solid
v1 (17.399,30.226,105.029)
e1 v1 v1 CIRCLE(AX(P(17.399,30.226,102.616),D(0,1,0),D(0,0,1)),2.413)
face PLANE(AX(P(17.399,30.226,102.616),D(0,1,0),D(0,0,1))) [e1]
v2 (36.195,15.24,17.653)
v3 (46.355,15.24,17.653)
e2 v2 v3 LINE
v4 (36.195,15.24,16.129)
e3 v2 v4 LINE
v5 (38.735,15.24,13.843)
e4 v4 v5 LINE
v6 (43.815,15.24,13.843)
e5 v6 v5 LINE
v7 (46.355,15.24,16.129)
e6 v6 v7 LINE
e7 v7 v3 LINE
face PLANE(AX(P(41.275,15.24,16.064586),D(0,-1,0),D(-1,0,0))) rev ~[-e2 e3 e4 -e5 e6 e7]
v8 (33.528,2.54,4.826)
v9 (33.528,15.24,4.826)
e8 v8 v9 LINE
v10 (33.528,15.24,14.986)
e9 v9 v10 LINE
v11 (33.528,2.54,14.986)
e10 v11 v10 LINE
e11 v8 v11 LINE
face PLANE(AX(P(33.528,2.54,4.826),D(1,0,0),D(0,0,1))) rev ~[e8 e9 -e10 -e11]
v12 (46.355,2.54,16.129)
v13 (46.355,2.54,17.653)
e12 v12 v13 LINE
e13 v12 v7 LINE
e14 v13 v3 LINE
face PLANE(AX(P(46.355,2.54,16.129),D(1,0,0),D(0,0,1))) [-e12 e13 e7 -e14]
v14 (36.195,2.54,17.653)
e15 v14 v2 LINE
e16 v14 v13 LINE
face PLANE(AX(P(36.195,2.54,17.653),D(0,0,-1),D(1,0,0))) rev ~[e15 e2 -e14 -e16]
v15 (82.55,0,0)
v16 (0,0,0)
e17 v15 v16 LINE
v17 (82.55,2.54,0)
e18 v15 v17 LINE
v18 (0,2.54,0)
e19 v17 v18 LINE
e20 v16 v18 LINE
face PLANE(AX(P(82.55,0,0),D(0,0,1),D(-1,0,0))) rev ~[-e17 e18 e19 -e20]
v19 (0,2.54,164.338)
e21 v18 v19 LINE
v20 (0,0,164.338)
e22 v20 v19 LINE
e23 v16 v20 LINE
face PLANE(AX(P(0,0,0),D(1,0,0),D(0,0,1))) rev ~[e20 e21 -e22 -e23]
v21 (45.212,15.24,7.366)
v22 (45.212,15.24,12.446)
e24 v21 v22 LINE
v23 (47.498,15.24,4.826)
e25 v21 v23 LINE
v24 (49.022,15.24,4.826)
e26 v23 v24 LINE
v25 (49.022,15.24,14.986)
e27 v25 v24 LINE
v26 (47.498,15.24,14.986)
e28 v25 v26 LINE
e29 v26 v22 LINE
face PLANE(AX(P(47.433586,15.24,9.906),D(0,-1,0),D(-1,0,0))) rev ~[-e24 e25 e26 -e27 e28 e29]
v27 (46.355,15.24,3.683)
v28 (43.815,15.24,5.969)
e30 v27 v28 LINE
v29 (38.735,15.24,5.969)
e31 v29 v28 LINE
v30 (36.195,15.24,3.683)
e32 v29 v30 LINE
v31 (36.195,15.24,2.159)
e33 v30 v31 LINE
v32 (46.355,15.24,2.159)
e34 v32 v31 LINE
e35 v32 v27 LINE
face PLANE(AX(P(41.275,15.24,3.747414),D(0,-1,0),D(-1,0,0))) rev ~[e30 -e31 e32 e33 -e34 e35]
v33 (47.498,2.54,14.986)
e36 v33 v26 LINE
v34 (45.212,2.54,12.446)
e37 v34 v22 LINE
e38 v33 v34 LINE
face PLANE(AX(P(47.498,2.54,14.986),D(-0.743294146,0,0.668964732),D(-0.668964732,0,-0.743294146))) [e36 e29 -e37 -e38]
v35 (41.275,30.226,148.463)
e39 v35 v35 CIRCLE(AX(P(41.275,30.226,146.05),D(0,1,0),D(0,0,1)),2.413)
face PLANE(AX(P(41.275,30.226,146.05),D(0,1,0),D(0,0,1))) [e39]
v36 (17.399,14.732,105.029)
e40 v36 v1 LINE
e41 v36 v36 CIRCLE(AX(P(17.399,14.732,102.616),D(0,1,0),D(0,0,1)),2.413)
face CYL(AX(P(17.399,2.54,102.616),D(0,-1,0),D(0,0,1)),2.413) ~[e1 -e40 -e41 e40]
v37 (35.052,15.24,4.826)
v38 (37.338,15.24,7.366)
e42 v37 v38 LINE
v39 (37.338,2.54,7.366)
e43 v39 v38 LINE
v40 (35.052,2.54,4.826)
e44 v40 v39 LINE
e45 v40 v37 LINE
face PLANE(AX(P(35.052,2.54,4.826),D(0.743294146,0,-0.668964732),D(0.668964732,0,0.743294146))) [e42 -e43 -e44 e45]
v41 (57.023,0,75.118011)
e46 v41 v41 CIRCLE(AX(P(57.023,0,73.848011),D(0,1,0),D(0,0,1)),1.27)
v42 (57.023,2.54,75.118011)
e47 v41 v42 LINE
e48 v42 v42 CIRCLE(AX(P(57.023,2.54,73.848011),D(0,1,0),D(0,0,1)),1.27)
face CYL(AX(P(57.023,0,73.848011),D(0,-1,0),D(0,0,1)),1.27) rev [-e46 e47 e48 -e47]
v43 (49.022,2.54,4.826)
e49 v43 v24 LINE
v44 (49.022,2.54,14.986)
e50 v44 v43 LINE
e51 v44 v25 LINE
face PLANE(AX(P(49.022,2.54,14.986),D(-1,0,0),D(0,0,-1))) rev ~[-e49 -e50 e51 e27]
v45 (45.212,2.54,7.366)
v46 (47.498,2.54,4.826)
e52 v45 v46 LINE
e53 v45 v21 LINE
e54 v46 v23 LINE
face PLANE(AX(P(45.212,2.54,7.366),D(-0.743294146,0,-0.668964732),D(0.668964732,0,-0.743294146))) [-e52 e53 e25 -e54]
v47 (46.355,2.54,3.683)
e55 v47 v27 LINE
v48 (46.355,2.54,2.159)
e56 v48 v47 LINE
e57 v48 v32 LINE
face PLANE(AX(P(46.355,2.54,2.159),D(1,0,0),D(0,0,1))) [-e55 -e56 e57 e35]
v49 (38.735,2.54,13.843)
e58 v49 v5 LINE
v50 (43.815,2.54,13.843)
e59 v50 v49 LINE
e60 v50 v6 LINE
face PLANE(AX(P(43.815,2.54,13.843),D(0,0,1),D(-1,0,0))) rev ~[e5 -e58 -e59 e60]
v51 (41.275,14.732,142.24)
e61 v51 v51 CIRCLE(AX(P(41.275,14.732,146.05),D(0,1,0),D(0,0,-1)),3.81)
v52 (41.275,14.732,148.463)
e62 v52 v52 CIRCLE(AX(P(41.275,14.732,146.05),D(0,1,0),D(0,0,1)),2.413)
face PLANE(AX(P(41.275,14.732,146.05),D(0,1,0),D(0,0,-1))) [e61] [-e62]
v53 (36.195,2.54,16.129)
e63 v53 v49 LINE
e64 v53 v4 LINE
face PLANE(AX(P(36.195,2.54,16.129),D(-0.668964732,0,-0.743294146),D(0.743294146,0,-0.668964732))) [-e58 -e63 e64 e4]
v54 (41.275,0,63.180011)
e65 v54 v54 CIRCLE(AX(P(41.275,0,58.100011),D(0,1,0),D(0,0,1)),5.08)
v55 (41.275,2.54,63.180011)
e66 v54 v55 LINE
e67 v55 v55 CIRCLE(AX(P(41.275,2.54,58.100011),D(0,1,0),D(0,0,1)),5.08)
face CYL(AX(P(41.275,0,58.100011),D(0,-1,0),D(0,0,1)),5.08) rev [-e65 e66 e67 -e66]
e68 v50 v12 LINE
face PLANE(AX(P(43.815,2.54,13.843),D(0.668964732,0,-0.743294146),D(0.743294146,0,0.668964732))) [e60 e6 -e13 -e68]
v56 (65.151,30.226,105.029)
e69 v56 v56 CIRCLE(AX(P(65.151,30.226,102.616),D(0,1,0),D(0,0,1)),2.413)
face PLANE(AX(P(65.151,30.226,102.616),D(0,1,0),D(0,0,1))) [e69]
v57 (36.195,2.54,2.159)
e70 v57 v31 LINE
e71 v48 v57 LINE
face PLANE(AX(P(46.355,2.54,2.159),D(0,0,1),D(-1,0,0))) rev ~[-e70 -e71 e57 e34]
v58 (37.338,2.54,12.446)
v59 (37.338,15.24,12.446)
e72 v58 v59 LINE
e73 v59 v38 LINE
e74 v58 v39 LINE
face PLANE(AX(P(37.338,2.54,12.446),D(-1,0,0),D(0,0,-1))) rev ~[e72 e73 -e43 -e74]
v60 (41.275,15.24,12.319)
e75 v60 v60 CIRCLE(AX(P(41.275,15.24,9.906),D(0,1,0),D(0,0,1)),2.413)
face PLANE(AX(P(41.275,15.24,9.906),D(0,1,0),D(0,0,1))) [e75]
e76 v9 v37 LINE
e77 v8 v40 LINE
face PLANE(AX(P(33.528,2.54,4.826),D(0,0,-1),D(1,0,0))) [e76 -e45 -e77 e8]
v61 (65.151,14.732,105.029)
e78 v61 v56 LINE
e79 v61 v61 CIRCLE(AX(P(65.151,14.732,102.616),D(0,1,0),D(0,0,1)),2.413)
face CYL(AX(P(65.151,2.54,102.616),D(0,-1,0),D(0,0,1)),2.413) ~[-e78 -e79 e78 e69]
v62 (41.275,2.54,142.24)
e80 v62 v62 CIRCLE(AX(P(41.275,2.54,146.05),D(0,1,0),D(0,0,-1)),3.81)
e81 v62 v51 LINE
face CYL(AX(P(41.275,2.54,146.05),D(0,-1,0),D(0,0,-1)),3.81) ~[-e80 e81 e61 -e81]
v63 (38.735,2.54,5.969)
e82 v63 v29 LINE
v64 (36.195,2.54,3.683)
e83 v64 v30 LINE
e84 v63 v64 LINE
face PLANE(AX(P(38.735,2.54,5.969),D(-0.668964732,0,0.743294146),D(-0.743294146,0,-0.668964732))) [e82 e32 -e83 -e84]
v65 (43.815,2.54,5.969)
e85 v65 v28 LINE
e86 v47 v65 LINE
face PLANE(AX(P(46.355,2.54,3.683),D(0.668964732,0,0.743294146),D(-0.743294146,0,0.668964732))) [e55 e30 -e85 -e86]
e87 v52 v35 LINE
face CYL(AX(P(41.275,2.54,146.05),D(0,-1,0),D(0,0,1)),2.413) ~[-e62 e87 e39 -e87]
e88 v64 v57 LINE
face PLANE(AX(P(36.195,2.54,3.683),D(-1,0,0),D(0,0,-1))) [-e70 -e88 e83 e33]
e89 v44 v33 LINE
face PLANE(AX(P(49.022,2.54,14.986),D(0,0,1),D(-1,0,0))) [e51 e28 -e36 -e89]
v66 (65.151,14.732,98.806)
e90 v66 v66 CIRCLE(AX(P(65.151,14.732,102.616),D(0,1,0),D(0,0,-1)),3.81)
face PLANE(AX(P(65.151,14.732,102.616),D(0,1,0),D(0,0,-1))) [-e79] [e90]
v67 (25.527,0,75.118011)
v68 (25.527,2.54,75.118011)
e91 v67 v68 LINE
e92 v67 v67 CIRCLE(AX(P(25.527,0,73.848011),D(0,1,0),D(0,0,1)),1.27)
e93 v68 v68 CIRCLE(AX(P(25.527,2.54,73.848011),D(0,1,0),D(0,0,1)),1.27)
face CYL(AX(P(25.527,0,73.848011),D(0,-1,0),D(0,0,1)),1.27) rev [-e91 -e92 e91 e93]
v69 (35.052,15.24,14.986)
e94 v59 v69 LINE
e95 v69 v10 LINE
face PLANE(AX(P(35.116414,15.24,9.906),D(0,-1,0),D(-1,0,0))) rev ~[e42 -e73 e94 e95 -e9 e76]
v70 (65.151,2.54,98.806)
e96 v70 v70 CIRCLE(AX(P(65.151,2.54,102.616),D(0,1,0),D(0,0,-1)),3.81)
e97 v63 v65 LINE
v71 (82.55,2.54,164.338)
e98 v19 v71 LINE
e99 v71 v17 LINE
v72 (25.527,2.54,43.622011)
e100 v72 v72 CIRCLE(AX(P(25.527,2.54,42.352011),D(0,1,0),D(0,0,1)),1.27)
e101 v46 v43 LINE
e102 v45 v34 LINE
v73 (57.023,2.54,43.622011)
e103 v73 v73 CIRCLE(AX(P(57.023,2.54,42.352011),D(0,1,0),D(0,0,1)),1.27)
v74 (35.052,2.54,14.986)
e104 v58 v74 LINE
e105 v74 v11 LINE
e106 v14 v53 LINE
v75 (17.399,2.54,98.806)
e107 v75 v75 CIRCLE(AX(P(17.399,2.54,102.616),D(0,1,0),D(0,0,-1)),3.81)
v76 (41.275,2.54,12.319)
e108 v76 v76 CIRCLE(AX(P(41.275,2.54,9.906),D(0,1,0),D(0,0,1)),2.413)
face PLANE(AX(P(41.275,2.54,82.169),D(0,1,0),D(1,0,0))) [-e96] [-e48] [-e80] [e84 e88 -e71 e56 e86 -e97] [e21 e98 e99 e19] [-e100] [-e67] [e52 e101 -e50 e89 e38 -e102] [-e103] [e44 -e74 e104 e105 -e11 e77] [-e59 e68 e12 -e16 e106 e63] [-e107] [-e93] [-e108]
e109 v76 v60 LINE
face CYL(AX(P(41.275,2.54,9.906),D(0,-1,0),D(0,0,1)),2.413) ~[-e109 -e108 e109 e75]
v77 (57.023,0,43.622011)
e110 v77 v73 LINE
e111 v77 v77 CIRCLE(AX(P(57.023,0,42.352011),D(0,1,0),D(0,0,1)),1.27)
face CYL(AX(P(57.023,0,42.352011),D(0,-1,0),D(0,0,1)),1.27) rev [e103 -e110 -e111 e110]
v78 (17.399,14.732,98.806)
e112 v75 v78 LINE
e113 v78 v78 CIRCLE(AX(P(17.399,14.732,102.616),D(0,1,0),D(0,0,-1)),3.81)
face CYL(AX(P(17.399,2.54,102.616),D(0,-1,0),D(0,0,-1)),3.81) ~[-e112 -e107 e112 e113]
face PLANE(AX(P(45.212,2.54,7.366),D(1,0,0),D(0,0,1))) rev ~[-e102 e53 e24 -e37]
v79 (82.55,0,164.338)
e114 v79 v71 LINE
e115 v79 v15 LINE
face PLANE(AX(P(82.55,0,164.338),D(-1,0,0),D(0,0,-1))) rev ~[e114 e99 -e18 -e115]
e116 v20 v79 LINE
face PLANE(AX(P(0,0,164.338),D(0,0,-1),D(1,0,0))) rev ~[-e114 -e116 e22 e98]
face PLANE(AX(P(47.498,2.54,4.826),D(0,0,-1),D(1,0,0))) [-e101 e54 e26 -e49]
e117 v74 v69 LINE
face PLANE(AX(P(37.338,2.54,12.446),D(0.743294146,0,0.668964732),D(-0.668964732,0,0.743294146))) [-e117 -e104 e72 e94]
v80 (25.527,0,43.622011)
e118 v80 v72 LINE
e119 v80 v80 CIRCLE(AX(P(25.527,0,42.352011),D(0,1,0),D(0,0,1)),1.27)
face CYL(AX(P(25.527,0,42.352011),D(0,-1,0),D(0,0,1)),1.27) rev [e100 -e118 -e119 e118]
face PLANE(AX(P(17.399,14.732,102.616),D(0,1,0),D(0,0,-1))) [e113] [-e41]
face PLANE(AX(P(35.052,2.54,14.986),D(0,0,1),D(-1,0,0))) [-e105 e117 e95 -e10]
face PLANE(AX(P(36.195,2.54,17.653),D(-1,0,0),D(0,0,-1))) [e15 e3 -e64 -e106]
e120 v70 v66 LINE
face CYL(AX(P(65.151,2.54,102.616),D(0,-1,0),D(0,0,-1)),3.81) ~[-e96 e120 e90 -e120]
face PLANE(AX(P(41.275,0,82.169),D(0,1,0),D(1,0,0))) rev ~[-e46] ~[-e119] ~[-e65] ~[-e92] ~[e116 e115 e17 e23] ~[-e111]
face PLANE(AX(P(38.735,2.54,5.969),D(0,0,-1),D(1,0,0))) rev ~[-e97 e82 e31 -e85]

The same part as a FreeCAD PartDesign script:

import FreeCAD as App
import Part
import Sketcher
from FreeCAD import Vector
Q = App.Units.Quantity


def add_polygon(sketch, points):
    """Adds a closed chain of lines whose ends are joined by coincident constraints."""
    first, n = sketch.GeometryCount, len(points)
    for a, b in zip(points, points[1:] + points[:1]):
        sketch.addGeometry(Part.LineSegment(App.Vector(*a, 0), App.Vector(*b, 0)), False)
    for i in range(n):
        sketch.addConstraint(Sketcher.Constraint("Coincident", first + i, 2, first + (i + 1) % n, 1))

doc = App.newDocument("Part")
body = doc.addObject("PartDesign::Body", "Body")

sketch1 = body.newObject("Sketcher::SketchObject", "Sketch")
sketch1.AttachmentSupport = (doc.getObject("XZ_Plane"), [""])
sketch1.MapMode = "FlatFace"
add_polygon(sketch1, [(82.5, 164.3), (82.5, 0), (0, 0), (0, 164.3)])
sketch1.addGeometry(Part.Circle(Vector(25.5, 73.8, 0), Vector(0, 0, 1), 1.3), False)
sketch1.addGeometry(Part.Circle(Vector(41.3, 58.1, 0), Vector(0, 0, 1), 5.1), False)
sketch1.addGeometry(Part.Circle(Vector(57, 73.8, 0), Vector(0, 0, 1), 1.3), False)
sketch1.addGeometry(Part.Circle(Vector(25.5, 42.4, 0), Vector(0, 0, 1), 1.3), False)
sketch1.addGeometry(Part.Circle(Vector(57, 42.4, 0), Vector(0, 0, 1), 1.3), False)
sketch1.addConstraint(Sketcher.Constraint("Vertical", 0))
sketch1.addConstraint(Sketcher.Constraint("Horizontal", 1))
sketch1.addConstraint(Sketcher.Constraint("Vertical", 2))
sketch1.addConstraint(Sketcher.Constraint("Horizontal", 3))
sketch1.addConstraint(Sketcher.Constraint("Coincident", 1, 2, -1, 1))
sketch1.addConstraint(Sketcher.Constraint("Equal", 4, 6))
sketch1.addConstraint(Sketcher.Constraint("Equal", 6, 7))
sketch1.addConstraint(Sketcher.Constraint("Equal", 7, 8))
sketch1.addConstraint(Sketcher.Constraint("Horizontal", 4, 3, 6, 3))
sketch1.addConstraint(Sketcher.Constraint("Horizontal", 7, 3, 8, 3))
sketch1.addConstraint(Sketcher.Constraint("Vertical", 4, 3, 7, 3))
sketch1.addConstraint(Sketcher.Constraint("Vertical", 6, 3, 8, 3))
sketch1.addConstraint(Sketcher.Constraint("Diameter", 4, Q("0.1 in")))
sketch1.addConstraint(Sketcher.Constraint("Diameter", 5, Q("0.4 in")))
sketch1.addConstraint(Sketcher.Constraint("DistanceX", 1, 2, 1, 1, Q("3.25 in")))
sketch1.addConstraint(Sketcher.Constraint("DistanceY", 0, 2, 0, 1, Q("6.47 in")))
sketch1.addConstraint(Sketcher.Constraint("DistanceX", 4, 3, 5, 3, Q("0.62 in")))
sketch1.addConstraint(Sketcher.Constraint("DistanceY", 5, 3, 4, 3, Q("0.62 in")))
sketch1.addConstraint(Sketcher.Constraint("DistanceX", 5, 3, 6, 3, Q("0.62 in")))
sketch1.addConstraint(Sketcher.Constraint("DistanceY", 7, 3, 5, 3, Q("0.62 in")))
sketch1.addConstraint(Sketcher.Constraint("DistanceX", -1, 1, 4, 3, Q("1.005 in")))
sketch1.addConstraint(Sketcher.Constraint("DistanceY", -1, 1, 4, 3, Q("73.848011 mm")))
pad1 = body.newObject("PartDesign::Pad", "Pad")
pad1.Profile = sketch1
pad1.Length = Q("0.1 in")
pad1.Reversed = True

sketch2 = body.newObject("Sketcher::SketchObject", "Sketch001")
sketch2.AttachmentSupport = (doc.getObject("XZ_Plane"), [""])
sketch2.MapMode = "FlatFace"
sketch2.AttachmentOffset = App.Placement(Vector(0, 0, -0.1 * 25.4), App.Rotation())
add_polygon(sketch2, [(33.5, 4.8), (33.5, 15), (35.1, 15), (37.3, 12.4), (37.3, 7.4), (35.1, 4.8)])
sketch2.addGeometry(Part.Circle(Vector(41.3, 9.9, 0), Vector(0, 0, 1), 2.4), False)
add_polygon(sketch2, [(46.4, 2.2), (36.2, 2.2), (36.2, 3.7), (38.7, 6), (43.8, 6), (46.4, 3.7)])
add_polygon(sketch2, [(45.2, 12.4), (47.5, 15), (49, 15), (49, 4.8), (47.5, 4.8), (45.2, 7.4)])
add_polygon(sketch2, [(36.2, 17.7), (46.4, 17.7), (46.4, 16.1), (43.8, 13.8), (38.7, 13.8), (36.2, 16.1)])
sketch2.addConstraint(Sketcher.Constraint("Vertical", 0))
sketch2.addConstraint(Sketcher.Constraint("Horizontal", 1))
sketch2.addConstraint(Sketcher.Constraint("Vertical", 3))
sketch2.addConstraint(Sketcher.Constraint("Horizontal", 5))
sketch2.addConstraint(Sketcher.Constraint("Horizontal", 7))
sketch2.addConstraint(Sketcher.Constraint("Vertical", 8))
sketch2.addConstraint(Sketcher.Constraint("Horizontal", 10))
sketch2.addConstraint(Sketcher.Constraint("Vertical", 12))
sketch2.addConstraint(Sketcher.Constraint("Horizontal", 14))
sketch2.addConstraint(Sketcher.Constraint("Vertical", 15))
sketch2.addConstraint(Sketcher.Constraint("Horizontal", 16))
sketch2.addConstraint(Sketcher.Constraint("Vertical", 18))
sketch2.addConstraint(Sketcher.Constraint("Horizontal", 19))
sketch2.addConstraint(Sketcher.Constraint("Vertical", 20))
sketch2.addConstraint(Sketcher.Constraint("Horizontal", 22))
sketch2.addConstraint(Sketcher.Constraint("Vertical", 24))
sketch2.addConstraint(Sketcher.Constraint("Perpendicular", 2, 9))
sketch2.addConstraint(Sketcher.Constraint("Perpendicular", 4, 11))
sketch2.addConstraint(Sketcher.Constraint("Perpendicular", 11, 13))
sketch2.addConstraint(Sketcher.Constraint("Perpendicular", 9, 17))
sketch2.addConstraint(Sketcher.Constraint("Perpendicular", 17, 21))
sketch2.addConstraint(Sketcher.Constraint("Perpendicular", 13, 23))
sketch2.addConstraint(Sketcher.Constraint("Horizontal", 8, 2, 11, 2))
sketch2.addConstraint(Sketcher.Constraint("Horizontal", 1, 2, 13, 2))
sketch2.addConstraint(Sketcher.Constraint("Horizontal", 5, 2, 15, 2))
sketch2.addConstraint(Sketcher.Constraint("Horizontal", 3, 2, 17, 2))
sketch2.addConstraint(Sketcher.Constraint("Horizontal", 2, 2, 18, 2))
sketch2.addConstraint(Sketcher.Constraint("Horizontal", 20, 2, 23, 2))
sketch2.addConstraint(Sketcher.Constraint("Vertical", 1, 2, 4, 2))
sketch2.addConstraint(Sketcher.Constraint("Vertical", 13, 2, 16, 2))
sketch2.addConstraint(Sketcher.Constraint("Vertical", 12, 2, 19, 2))
sketch2.addConstraint(Sketcher.Constraint("Vertical", 10, 2, 21, 2))
sketch2.addConstraint(Sketcher.Constraint("Vertical", 9, 2, 22, 2))
sketch2.addConstraint(Sketcher.Constraint("Equal", 5, 14))
sketch2.addConstraint(Sketcher.Constraint("Equal", 19, 0))
sketch2.addConstraint(Sketcher.Constraint("Equal", 22, 3))
sketch2.addConstraint(Sketcher.Constraint("Equal", 16, 8))
sketch2.addConstraint(Sketcher.Constraint("Equal", 12, 20))
sketch2.addConstraint(Sketcher.Constraint("Diameter", 6, Q("0.19 in")))
sketch2.addConstraint(Sketcher.Constraint("DistanceX", 7, 2, 7, 1, Q("0.4 in")))
sketch2.addConstraint(Sketcher.Constraint("DistanceX", 10, 1, 10, 2, Q("0.2 in")))
sketch2.addConstraint(Sketcher.Constraint("DistanceX", 1, 1, 1, 2, Q("0.06 in")))
sketch2.addConstraint(Sketcher.Constraint("DistanceY", 6, 3, 0, 2, Q("0.2 in")))
sketch2.addConstraint(Sketcher.Constraint("DistanceX", 7, 2, 6, 3, Q("0.2 in")))
sketch2.addConstraint(Sketcher.Constraint("DistanceX", 2, 2, 13, 2, Q("0.4 in")))
sketch2.addConstraint(Sketcher.Constraint("DistanceY", -1, 1, 6, 3, Q("0.39 in")))
sketch2.addConstraint(Sketcher.Constraint("DistanceX", -1, 1, 0, 2, Q("1.32 in")))
sketch2.addConstraint(Sketcher.Constraint("DistanceX", -1, 1, 2, 2, Q("1.47 in")))
sketch2.addConstraint(Sketcher.Constraint("DistanceX", -1, 1, 6, 3, Q("1.625 in")))
sketch2.addConstraint(Sketcher.Constraint("DistanceY", -1, 1, 7, 2, Q("0.085 in")))
sketch2.addConstraint(Sketcher.Constraint("DistanceY", -1, 1, 19, 2, Q("0.695 in")))
pad2 = body.newObject("PartDesign::Pad", "Pad001")
pad2.Profile = sketch2
pad2.Length = Q("0.5 in")
pad2.Reversed = True

sketch3 = body.newObject("Sketcher::SketchObject", "Sketch002")
sketch3.AttachmentSupport = (doc.getObject("XZ_Plane"), [""])
sketch3.MapMode = "FlatFace"
sketch3.AttachmentOffset = App.Placement(Vector(0, 0, -0.1 * 25.4), App.Rotation())
sketch3.addGeometry(Part.Circle(Vector(17.4, 102.6, 0), Vector(0, 0, 1), 2.4), False)
sketch3.addGeometry(Part.Circle(Vector(41.3, 146.1, 0), Vector(0, 0, 1), 2.4), False)
sketch3.addGeometry(Part.Circle(Vector(65.2, 102.6, 0), Vector(0, 0, 1), 2.4), False)
sketch3.addConstraint(Sketcher.Constraint("Equal", 0, 1))
sketch3.addConstraint(Sketcher.Constraint("Equal", 1, 2))
sketch3.addConstraint(Sketcher.Constraint("Horizontal", 0, 3, 2, 3))
sketch3.addConstraint(Sketcher.Constraint("Diameter", 0, Q("0.19 in")))
sketch3.addConstraint(Sketcher.Constraint("DistanceY", -1, 1, 0, 3, Q("4.04 in")))
sketch3.addConstraint(Sketcher.Constraint("DistanceY", -1, 1, 1, 3, Q("5.75 in")))
sketch3.addConstraint(Sketcher.Constraint("DistanceX", 0, 3, 1, 3, Q("0.94 in")))
sketch3.addConstraint(Sketcher.Constraint("DistanceX", 0, 3, 2, 3, Q("1.88 in")))
sketch3.addConstraint(Sketcher.Constraint("DistanceX", -1, 1, 0, 3, Q("0.685 in")))
pad3 = body.newObject("PartDesign::Pad", "Pad002")
pad3.Profile = sketch3
pad3.Length = Q("1.09 in")
pad3.Reversed = True

sketch4 = body.newObject("Sketcher::SketchObject", "Sketch003")
sketch4.AttachmentSupport = (doc.getObject("XZ_Plane"), [""])
sketch4.MapMode = "FlatFace"
sketch4.AttachmentOffset = App.Placement(Vector(0, 0, -0.1 * 25.4), App.Rotation())
sketch4.addGeometry(Part.Circle(Vector(41.3, 146.1, 0), Vector(0, 0, 1), 3.8), False)
sketch4.addGeometry(Part.Circle(Vector(41.3, 146.1, 0), Vector(0, 0, 1), 2.4), False)
sketch4.addGeometry(Part.Circle(Vector(65.2, 102.6, 0), Vector(0, 0, 1), 3.8), False)
sketch4.addGeometry(Part.Circle(Vector(65.2, 102.6, 0), Vector(0, 0, 1), 2.4), False)
sketch4.addGeometry(Part.Circle(Vector(17.4, 102.6, 0), Vector(0, 0, 1), 3.8), False)
sketch4.addGeometry(Part.Circle(Vector(17.4, 102.6, 0), Vector(0, 0, 1), 2.4), False)
sketch4.addConstraint(Sketcher.Constraint("Coincident", 1, 3, 0, 3))
sketch4.addConstraint(Sketcher.Constraint("Coincident", 3, 3, 2, 3))
sketch4.addConstraint(Sketcher.Constraint("Coincident", 5, 3, 4, 3))
sketch4.addConstraint(Sketcher.Constraint("Equal", 0, 2))
sketch4.addConstraint(Sketcher.Constraint("Equal", 1, 3))
sketch4.addConstraint(Sketcher.Constraint("Equal", 2, 4))
sketch4.addConstraint(Sketcher.Constraint("Equal", 3, 5))
sketch4.addConstraint(Sketcher.Constraint("Horizontal", 3, 3, 4, 3))
sketch4.addConstraint(Sketcher.Constraint("Diameter", 0, Q("0.3 in")))
sketch4.addConstraint(Sketcher.Constraint("Diameter", 1, Q("0.19 in")))
sketch4.addConstraint(Sketcher.Constraint("DistanceY", -1, 1, 0, 3, Q("5.75 in")))
sketch4.addConstraint(Sketcher.Constraint("DistanceY", -1, 1, 2, 3, Q("4.04 in")))
sketch4.addConstraint(Sketcher.Constraint("DistanceX", 0, 3, 2, 3, Q("0.94 in")))
sketch4.addConstraint(Sketcher.Constraint("DistanceX", 4, 3, 2, 3, Q("1.88 in")))
sketch4.addConstraint(Sketcher.Constraint("DistanceX", -1, 1, 0, 3, Q("1.625 in")))
pad4 = body.newObject("PartDesign::Pad", "Pad003")
pad4.Profile = sketch4
pad4.Length = Q("0.48 in")
pad4.Reversed = True

doc.recompute()
